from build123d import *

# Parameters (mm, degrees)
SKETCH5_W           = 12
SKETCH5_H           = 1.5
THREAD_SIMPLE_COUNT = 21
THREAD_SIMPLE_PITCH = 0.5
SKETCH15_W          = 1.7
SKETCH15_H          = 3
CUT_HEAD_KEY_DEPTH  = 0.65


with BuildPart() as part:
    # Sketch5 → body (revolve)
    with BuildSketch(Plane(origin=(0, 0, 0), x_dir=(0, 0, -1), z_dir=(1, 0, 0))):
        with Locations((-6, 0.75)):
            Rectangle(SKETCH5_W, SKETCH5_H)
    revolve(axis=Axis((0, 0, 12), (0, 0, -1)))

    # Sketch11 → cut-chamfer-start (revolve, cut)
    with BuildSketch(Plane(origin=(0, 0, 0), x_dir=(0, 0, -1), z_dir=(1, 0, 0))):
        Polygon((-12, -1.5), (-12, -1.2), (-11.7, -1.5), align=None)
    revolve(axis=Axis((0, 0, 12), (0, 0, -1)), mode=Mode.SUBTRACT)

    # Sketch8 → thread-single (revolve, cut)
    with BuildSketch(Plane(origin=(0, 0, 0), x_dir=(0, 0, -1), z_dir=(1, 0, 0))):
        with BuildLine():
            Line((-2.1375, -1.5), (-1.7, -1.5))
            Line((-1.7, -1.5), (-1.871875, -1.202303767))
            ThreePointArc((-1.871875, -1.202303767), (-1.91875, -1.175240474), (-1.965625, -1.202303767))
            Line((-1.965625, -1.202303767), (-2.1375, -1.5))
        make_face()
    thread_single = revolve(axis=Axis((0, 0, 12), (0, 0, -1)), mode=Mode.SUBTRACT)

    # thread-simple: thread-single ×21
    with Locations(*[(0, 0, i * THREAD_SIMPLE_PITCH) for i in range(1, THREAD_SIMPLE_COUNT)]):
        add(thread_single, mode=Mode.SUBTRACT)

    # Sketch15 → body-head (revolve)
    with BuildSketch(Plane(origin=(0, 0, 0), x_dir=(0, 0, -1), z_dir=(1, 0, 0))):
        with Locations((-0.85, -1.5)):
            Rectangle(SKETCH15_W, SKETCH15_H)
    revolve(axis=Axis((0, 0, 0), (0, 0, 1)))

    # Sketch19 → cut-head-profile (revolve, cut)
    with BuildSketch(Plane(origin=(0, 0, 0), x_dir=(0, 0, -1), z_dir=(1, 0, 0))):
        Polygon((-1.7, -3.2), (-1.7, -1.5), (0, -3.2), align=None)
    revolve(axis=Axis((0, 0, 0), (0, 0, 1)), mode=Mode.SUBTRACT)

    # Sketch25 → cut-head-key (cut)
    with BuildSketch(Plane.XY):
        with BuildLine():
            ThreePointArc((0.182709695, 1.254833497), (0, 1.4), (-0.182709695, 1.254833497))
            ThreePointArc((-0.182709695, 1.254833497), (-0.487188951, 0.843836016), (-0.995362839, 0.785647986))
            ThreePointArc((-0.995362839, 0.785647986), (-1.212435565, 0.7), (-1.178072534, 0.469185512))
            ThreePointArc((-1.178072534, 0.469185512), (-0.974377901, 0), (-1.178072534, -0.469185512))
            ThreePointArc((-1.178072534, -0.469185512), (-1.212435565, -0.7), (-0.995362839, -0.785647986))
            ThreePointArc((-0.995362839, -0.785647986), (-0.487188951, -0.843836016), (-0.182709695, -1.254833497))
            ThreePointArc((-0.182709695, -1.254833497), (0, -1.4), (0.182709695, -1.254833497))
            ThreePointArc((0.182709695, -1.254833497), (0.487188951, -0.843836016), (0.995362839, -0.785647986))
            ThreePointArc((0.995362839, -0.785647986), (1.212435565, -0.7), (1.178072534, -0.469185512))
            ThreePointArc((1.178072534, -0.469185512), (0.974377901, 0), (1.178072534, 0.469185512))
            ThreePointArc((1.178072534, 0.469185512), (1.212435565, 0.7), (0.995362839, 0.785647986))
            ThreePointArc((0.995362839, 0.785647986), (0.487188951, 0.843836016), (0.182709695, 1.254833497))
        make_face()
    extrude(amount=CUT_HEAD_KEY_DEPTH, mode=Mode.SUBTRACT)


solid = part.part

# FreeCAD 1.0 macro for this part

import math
import FreeCAD as App
import Part
import Sketcher
Q = App.Units.Quantity

doc = App.newDocument("Part")
params = doc.addObject("Spreadsheet::Sheet", "Params")
for row, (alias, value) in enumerate([
    ("sketch1_height", "12 mm"),
    ("sketch1_width", "1.5 mm"),
    ("revolution_angle", "360 deg"),
    ("sketch2_width", "0.3 mm"),
    ("groove_angle", "360 deg"),
    ("groove2_angle", "360 deg"),
    ("linearpattern_pitch", "0.5 mm"),
    ("sketch4_width", "3 mm"),
    ("sketch4_height", "1.7 mm"),
    ("revolution2_angle", "360 deg"),
    ("sketch5_width", "1.7 mm"),
    ("groove3_angle", "360 deg"),
    ("pocket1_length", "0.65 mm"),
], start=1):
    params.set(f"A{row}", alias)
    params.set(f"B{row}", "=" + value)
    params.setAlias(f"B{row}", alias)

body = doc.addObject("PartDesign::Body", "Body")

# Sketch on YZ plane
sketch1 = doc.addObject("Sketcher::SketchObject", "Sketch")
body.addObject(sketch1)
sketch1.AttachmentSupport = (doc.YZ_Plane, [""])
sketch1.MapMode = "FlatFace"
sketch1.addGeometry([
    Part.LineSegment(App.Vector(1.5, 12, 0), App.Vector(0, 12, 0)),
    Part.LineSegment(App.Vector(0, 12, 0), App.Vector(0, 0, 0)),
    Part.LineSegment(App.Vector(0, 0, 0), App.Vector(1.5, 0, 0)),
    Part.LineSegment(App.Vector(1.5, 0, 0), App.Vector(1.5, 12, 0)),
], False)
sketch1.addConstraint([
    Sketcher.Constraint("Coincident", 0, 2, 1, 1),
    Sketcher.Constraint("Coincident", 1, 2, 2, 1),
    Sketcher.Constraint("Coincident", 2, 2, 3, 1),
    Sketcher.Constraint("Coincident", 3, 2, 0, 1),
    Sketcher.Constraint("Horizontal", 0),
    Sketcher.Constraint("Vertical", 1),
    Sketcher.Constraint("Horizontal", 2),
    Sketcher.Constraint("Vertical", 3),
    Sketcher.Constraint("Coincident", 1, 2, -1, 1),
    Sketcher.Constraint("DistanceY", 1, 2, 1, 1, Q("12 mm")),
    Sketcher.Constraint("DistanceX", 0, 2, 0, 1, Q("1.5 mm")),
])
sketch1.setExpression("Constraints[9]", "Params.sketch1_height")
sketch1.setExpression("Constraints[10]", "Params.sketch1_width")
revolution = doc.addObject("PartDesign::Revolution", "Revolution")
body.addObject(revolution)
revolution.Profile = sketch1
revolution.ReferenceAxis = (sketch1, ["V_Axis"])
revolution.setExpression("Angle", "Params.revolution_angle")

# Sketch on YZ plane
sketch2 = doc.addObject("Sketcher::SketchObject", "Sketch001")
body.addObject(sketch2)
sketch2.AttachmentSupport = (doc.YZ_Plane, [""])
sketch2.MapMode = "FlatFace"
sketch2.addGeometry([
    Part.LineSegment(App.Vector(-1.2, 12, 0), App.Vector(-1.5, 12, 0)),
    Part.LineSegment(App.Vector(-1.5, 12, 0), App.Vector(-1.5, 11.7, 0)),
    Part.LineSegment(App.Vector(-1.5, 11.7, 0), App.Vector(-1.2, 12, 0)),
], False)
sketch2.addConstraint([
    Sketcher.Constraint("Coincident", 0, 2, 1, 1),
    Sketcher.Constraint("Coincident", 1, 2, 2, 1),
    Sketcher.Constraint("Coincident", 2, 2, 0, 1),
    Sketcher.Constraint("Horizontal", 0),
    Sketcher.Constraint("Vertical", 1),
    Sketcher.Constraint("Equal", 0, 1),
    Sketcher.Constraint("DistanceX", 0, 2, 0, 1, Q("0.3 mm")),
    Sketcher.Constraint("DistanceY", -1, 1, 0, 2, Q("12 mm")),
    Sketcher.Constraint("DistanceX", 0, 2, -1, 1, Q("1.5 mm")),
])
sketch2.setExpression("Constraints[6]", "Params.sketch2_width")
groove = doc.addObject("PartDesign::Groove", "Groove")
body.addObject(groove)
groove.Profile = sketch2
groove.ReferenceAxis = (sketch2, ["V_Axis"])
groove.setExpression("Angle", "Params.groove_angle")

# Sketch on YZ plane
sketch3 = doc.addObject("Sketcher::SketchObject", "Sketch002")
body.addObject(sketch3)
sketch3.AttachmentSupport = (doc.YZ_Plane, [""])
sketch3.MapMode = "FlatFace"
sketch3.addGeometry([
    Part.LineSegment(App.Vector(-1.5, 2.1375, 0), App.Vector(-1.5, 1.7, 0)),
    Part.LineSegment(App.Vector(-1.5, 1.7, 0), App.Vector(-1.202304, 1.871875, 0)),
    Part.ArcOfCircle(Part.Circle(App.Vector(-1.229367, 1.91875, 0), App.Vector(0, 0, 1), 0.054127), math.radians(-59.999998), math.radians(59.999998)),
    Part.LineSegment(App.Vector(-1.202304, 1.965625, 0), App.Vector(-1.5, 2.1375, 0)),
], False)
sketch3.addConstraint([
    Sketcher.Constraint("Coincident", 0, 2, 1, 1),
    Sketcher.Constraint("Tangent", 1, 2, 2, 1),
    Sketcher.Constraint("Tangent", 2, 2, 3, 1),
    Sketcher.Constraint("Coincident", 3, 2, 0, 1),
    Sketcher.Constraint("Vertical", 0),
    Sketcher.Constraint("Vertical", 1, 2, 2, 2),
    Sketcher.Constraint("Angle", 1, Q("30 deg")),
    Sketcher.Constraint("DistanceX", 0, 2, -1, 1, Q("1.5 mm")),
    Sketcher.Constraint("DistanceY", -1, 1, 0, 2, Q("1.7 mm")),
    Sketcher.Constraint("DistanceY", 0, 2, 0, 1, Q("0.4375 mm")),
    Sketcher.Constraint("Radius", 2, Q("0.054127 mm")),
])
groove2 = doc.addObject("PartDesign::Groove", "Groove001")
body.addObject(groove2)
groove2.Profile = sketch3
groove2.ReferenceAxis = (sketch3, ["V_Axis"])
groove2.setExpression("Angle", "Params.groove2_angle")
doc.recompute()

linearpattern = doc.addObject("PartDesign::LinearPattern", "LinearPattern")
body.addObject(linearpattern)
linearpattern.Originals = [groove2]
linearpattern.Direction = (doc.Z_Axis, [""])
linearpattern.Mode = "offset"
linearpattern.setExpression("Offset", "Params.linearpattern_pitch")
linearpattern.Occurrences = 21
body.Tip = linearpattern

# Sketch on YZ plane
sketch4 = doc.addObject("Sketcher::SketchObject", "Sketch003")
body.addObject(sketch4)
sketch4.AttachmentSupport = (doc.YZ_Plane, [""])
sketch4.MapMode = "FlatFace"
sketch4.addGeometry([
    Part.LineSegment(App.Vector(0, 1.7, 0), App.Vector(-3, 1.7, 0)),
    Part.LineSegment(App.Vector(-3, 1.7, 0), App.Vector(-3, 0, 0)),
    Part.LineSegment(App.Vector(-3, 0, 0), App.Vector(0, 0, 0)),
    Part.LineSegment(App.Vector(0, 0, 0), App.Vector(0, 1.7, 0)),
], False)
sketch4.addConstraint([
    Sketcher.Constraint("Coincident", 0, 2, 1, 1),
    Sketcher.Constraint("Coincident", 1, 2, 2, 1),
    Sketcher.Constraint("Coincident", 2, 2, 3, 1),
    Sketcher.Constraint("Coincident", 3, 2, 0, 1),
    Sketcher.Constraint("Horizontal", 0),
    Sketcher.Constraint("Vertical", 1),
    Sketcher.Constraint("Horizontal", 2),
    Sketcher.Constraint("Vertical", 3),
    Sketcher.Constraint("Coincident", 2, 2, -1, 1),
    Sketcher.Constraint("DistanceX", 0, 2, 0, 1, Q("3 mm")),
    Sketcher.Constraint("DistanceY", 1, 2, 1, 1, Q("1.7 mm")),
])
sketch4.setExpression("Constraints[9]", "Params.sketch4_width")
sketch4.setExpression("Constraints[10]", "Params.sketch4_height")
revolution2 = doc.addObject("PartDesign::Revolution", "Revolution001")
body.addObject(revolution2)
revolution2.Profile = sketch4
revolution2.ReferenceAxis = (sketch4, ["V_Axis"])
revolution2.setExpression("Angle", "Params.revolution2_angle")

# Sketch on YZ plane
sketch5 = doc.addObject("Sketcher::SketchObject", "Sketch004")
body.addObject(sketch5)
sketch5.AttachmentSupport = (doc.YZ_Plane, [""])
sketch5.MapMode = "FlatFace"
sketch5.addGeometry([
    Part.LineSegment(App.Vector(-1.5, 1.7, 0), App.Vector(-3.2, 1.7, 0)),
    Part.LineSegment(App.Vector(-3.2, 1.7, 0), App.Vector(-3.2, 0, 0)),
    Part.LineSegment(App.Vector(-3.2, 0, 0), App.Vector(-1.5, 1.7, 0)),
], False)
sketch5.addConstraint([
    Sketcher.Constraint("Coincident", 0, 2, 1, 1),
    Sketcher.Constraint("Coincident", 1, 2, 2, 1),
    Sketcher.Constraint("Coincident", 2, 2, 0, 1),
    Sketcher.Constraint("Horizontal", 0),
    Sketcher.Constraint("Vertical", 1),
    Sketcher.Constraint("PointOnObject", 1, 2, -1),
    Sketcher.Constraint("Equal", 0, 1),
    Sketcher.Constraint("DistanceX", 0, 2, 0, 1, Q("1.7 mm")),
    Sketcher.Constraint("DistanceX", 0, 2, -1, 1, Q("3.2 mm")),
])
sketch5.setExpression("Constraints[7]", "Params.sketch5_width")
groove3 = doc.addObject("PartDesign::Groove", "Groove002")
body.addObject(groove3)
groove3.Profile = sketch5
groove3.ReferenceAxis = (sketch5, ["V_Axis"])
groove3.setExpression("Angle", "Params.groove3_angle")

# Sketch on XY plane
sketch6 = doc.addObject("Sketcher::SketchObject", "Sketch005")
body.addObject(sketch6)
sketch6.AttachmentSupport = (doc.XY_Plane, [""])
sketch6.MapMode = "FlatFace"
sketch6.addGeometry([
    Part.ArcOfCircle(Part.Circle(App.Vector(0, 1.212436, 0), App.Vector(0, 0, 1), 0.187564), math.radians(13.064313), math.radians(166.935687)),  # 0
    Part.ArcOfCircle(Part.Circle(App.Vector(-0.80829, 1.4, 0), App.Vector(0, 0, 1), 0.642203), math.radians(-106.935687), math.radians(-13.064314)),  # 1
    Part.ArcOfCircle(Part.Circle(App.Vector(-1.05, 0.606218, 0), App.Vector(0, 0, 1), 0.187564), math.radians(73.064313), math.radians(226.935687)),  # 2
    Part.ArcOfCircle(Part.Circle(App.Vector(-1.616581, 0, 0), App.Vector(0, 0, 1), 0.642203), math.radians(-46.935687), math.radians(46.935687)),  # 3
    Part.ArcOfCircle(Part.Circle(App.Vector(-1.05, -0.606218, 0), App.Vector(0, 0, 1), 0.187564), math.radians(133.064313), math.radians(286.935687)),  # 4
    Part.ArcOfCircle(Part.Circle(App.Vector(-0.80829, -1.4, 0), App.Vector(0, 0, 1), 0.642203), math.radians(13.064314), math.radians(106.935687)),  # 5
    Part.ArcOfCircle(Part.Circle(App.Vector(0, -1.212436, 0), App.Vector(0, 0, 1), 0.187564), math.radians(-166.935687), math.radians(-13.064313)),  # 6
    Part.ArcOfCircle(Part.Circle(App.Vector(0.80829, -1.4, 0), App.Vector(0, 0, 1), 0.642203), math.radians(73.064313), math.radians(166.935686)),  # 7
    Part.ArcOfCircle(Part.Circle(App.Vector(1.05, -0.606218, 0), App.Vector(0, 0, 1), 0.187564), math.radians(-106.935687), math.radians(46.935687)),  # 8
    Part.ArcOfCircle(Part.Circle(App.Vector(1.616581, 0, 0), App.Vector(0, 0, 1), 0.642203), math.radians(133.064313), math.radians(226.935687)),  # 9
    Part.ArcOfCircle(Part.Circle(App.Vector(1.05, 0.606218, 0), App.Vector(0, 0, 1), 0.187564), math.radians(-46.935687), math.radians(106.935687)),  # 10
    Part.ArcOfCircle(Part.Circle(App.Vector(0.80829, 1.4, 0), App.Vector(0, 0, 1), 0.642203), math.radians(-166.935686), math.radians(-73.064313)),  # 11
], False)
sketch6.addConstraint([
    Sketcher.Constraint("Tangent", 0, 2, 1, 2),
    Sketcher.Constraint("Tangent", 1, 1, 2, 1),
    Sketcher.Constraint("Tangent", 2, 2, 3, 2),
    Sketcher.Constraint("Tangent", 3, 1, 4, 1),
    Sketcher.Constraint("Tangent", 4, 2, 5, 2),
    Sketcher.Constraint("Tangent", 5, 1, 6, 1),
    Sketcher.Constraint("Tangent", 6, 2, 7, 2),
    Sketcher.Constraint("Tangent", 7, 1, 8, 1),
    Sketcher.Constraint("Tangent", 8, 2, 9, 2),
    Sketcher.Constraint("Tangent", 9, 1, 10, 1),
    Sketcher.Constraint("Tangent", 10, 2, 11, 2),
    Sketcher.Constraint("Tangent", 11, 1, 0, 1),
    Sketcher.Constraint("Equal", 0, 2),
    Sketcher.Constraint("Equal", 1, 3),
    Sketcher.Constraint("Equal", 2, 4),
    Sketcher.Constraint("Equal", 3, 5),
    Sketcher.Constraint("Equal", 4, 6),
    Sketcher.Constraint("Equal", 5, 7),
    Sketcher.Constraint("Equal", 6, 8),
    Sketcher.Constraint("Equal", 7, 9),
    Sketcher.Constraint("Equal", 8, 10),
    Sketcher.Constraint("Equal", 9, 11),
    Sketcher.Constraint("Symmetric", 0, 3, 6, 3, -1, 1),
    Sketcher.Constraint("Symmetric", 2, 3, 8, 3, -1, 1),
    Sketcher.Constraint("Symmetric", 4, 3, 10, 3, -1, 1),
    Sketcher.Constraint("Symmetric", 5, 3, 7, 3, -2),
    Sketcher.Constraint("PointOnObject", 3, 3, -1),
    Sketcher.Constraint("DistanceY", -1, 1, 1, 3, Q("1.4 mm")),
    Sketcher.Constraint("DistanceX", 4, 3, 8, 3, Q("2.1 mm")),
    Sketcher.Constraint("Radius", 0, Q("0.187564 mm")),
    Sketcher.Constraint("Radius", 1, Q("0.642203 mm")),
    Sketcher.Constraint("DistanceX", 0, 2, 11, 3, Q("0.991 mm")),
])
pocket1 = doc.addObject("PartDesign::Pocket", "Pocket")
body.addObject(pocket1)
pocket1.Profile = sketch6
pocket1.setExpression("Length", "Params.pocket1_length")
pocket1.Reversed = True

doc.recompute()
